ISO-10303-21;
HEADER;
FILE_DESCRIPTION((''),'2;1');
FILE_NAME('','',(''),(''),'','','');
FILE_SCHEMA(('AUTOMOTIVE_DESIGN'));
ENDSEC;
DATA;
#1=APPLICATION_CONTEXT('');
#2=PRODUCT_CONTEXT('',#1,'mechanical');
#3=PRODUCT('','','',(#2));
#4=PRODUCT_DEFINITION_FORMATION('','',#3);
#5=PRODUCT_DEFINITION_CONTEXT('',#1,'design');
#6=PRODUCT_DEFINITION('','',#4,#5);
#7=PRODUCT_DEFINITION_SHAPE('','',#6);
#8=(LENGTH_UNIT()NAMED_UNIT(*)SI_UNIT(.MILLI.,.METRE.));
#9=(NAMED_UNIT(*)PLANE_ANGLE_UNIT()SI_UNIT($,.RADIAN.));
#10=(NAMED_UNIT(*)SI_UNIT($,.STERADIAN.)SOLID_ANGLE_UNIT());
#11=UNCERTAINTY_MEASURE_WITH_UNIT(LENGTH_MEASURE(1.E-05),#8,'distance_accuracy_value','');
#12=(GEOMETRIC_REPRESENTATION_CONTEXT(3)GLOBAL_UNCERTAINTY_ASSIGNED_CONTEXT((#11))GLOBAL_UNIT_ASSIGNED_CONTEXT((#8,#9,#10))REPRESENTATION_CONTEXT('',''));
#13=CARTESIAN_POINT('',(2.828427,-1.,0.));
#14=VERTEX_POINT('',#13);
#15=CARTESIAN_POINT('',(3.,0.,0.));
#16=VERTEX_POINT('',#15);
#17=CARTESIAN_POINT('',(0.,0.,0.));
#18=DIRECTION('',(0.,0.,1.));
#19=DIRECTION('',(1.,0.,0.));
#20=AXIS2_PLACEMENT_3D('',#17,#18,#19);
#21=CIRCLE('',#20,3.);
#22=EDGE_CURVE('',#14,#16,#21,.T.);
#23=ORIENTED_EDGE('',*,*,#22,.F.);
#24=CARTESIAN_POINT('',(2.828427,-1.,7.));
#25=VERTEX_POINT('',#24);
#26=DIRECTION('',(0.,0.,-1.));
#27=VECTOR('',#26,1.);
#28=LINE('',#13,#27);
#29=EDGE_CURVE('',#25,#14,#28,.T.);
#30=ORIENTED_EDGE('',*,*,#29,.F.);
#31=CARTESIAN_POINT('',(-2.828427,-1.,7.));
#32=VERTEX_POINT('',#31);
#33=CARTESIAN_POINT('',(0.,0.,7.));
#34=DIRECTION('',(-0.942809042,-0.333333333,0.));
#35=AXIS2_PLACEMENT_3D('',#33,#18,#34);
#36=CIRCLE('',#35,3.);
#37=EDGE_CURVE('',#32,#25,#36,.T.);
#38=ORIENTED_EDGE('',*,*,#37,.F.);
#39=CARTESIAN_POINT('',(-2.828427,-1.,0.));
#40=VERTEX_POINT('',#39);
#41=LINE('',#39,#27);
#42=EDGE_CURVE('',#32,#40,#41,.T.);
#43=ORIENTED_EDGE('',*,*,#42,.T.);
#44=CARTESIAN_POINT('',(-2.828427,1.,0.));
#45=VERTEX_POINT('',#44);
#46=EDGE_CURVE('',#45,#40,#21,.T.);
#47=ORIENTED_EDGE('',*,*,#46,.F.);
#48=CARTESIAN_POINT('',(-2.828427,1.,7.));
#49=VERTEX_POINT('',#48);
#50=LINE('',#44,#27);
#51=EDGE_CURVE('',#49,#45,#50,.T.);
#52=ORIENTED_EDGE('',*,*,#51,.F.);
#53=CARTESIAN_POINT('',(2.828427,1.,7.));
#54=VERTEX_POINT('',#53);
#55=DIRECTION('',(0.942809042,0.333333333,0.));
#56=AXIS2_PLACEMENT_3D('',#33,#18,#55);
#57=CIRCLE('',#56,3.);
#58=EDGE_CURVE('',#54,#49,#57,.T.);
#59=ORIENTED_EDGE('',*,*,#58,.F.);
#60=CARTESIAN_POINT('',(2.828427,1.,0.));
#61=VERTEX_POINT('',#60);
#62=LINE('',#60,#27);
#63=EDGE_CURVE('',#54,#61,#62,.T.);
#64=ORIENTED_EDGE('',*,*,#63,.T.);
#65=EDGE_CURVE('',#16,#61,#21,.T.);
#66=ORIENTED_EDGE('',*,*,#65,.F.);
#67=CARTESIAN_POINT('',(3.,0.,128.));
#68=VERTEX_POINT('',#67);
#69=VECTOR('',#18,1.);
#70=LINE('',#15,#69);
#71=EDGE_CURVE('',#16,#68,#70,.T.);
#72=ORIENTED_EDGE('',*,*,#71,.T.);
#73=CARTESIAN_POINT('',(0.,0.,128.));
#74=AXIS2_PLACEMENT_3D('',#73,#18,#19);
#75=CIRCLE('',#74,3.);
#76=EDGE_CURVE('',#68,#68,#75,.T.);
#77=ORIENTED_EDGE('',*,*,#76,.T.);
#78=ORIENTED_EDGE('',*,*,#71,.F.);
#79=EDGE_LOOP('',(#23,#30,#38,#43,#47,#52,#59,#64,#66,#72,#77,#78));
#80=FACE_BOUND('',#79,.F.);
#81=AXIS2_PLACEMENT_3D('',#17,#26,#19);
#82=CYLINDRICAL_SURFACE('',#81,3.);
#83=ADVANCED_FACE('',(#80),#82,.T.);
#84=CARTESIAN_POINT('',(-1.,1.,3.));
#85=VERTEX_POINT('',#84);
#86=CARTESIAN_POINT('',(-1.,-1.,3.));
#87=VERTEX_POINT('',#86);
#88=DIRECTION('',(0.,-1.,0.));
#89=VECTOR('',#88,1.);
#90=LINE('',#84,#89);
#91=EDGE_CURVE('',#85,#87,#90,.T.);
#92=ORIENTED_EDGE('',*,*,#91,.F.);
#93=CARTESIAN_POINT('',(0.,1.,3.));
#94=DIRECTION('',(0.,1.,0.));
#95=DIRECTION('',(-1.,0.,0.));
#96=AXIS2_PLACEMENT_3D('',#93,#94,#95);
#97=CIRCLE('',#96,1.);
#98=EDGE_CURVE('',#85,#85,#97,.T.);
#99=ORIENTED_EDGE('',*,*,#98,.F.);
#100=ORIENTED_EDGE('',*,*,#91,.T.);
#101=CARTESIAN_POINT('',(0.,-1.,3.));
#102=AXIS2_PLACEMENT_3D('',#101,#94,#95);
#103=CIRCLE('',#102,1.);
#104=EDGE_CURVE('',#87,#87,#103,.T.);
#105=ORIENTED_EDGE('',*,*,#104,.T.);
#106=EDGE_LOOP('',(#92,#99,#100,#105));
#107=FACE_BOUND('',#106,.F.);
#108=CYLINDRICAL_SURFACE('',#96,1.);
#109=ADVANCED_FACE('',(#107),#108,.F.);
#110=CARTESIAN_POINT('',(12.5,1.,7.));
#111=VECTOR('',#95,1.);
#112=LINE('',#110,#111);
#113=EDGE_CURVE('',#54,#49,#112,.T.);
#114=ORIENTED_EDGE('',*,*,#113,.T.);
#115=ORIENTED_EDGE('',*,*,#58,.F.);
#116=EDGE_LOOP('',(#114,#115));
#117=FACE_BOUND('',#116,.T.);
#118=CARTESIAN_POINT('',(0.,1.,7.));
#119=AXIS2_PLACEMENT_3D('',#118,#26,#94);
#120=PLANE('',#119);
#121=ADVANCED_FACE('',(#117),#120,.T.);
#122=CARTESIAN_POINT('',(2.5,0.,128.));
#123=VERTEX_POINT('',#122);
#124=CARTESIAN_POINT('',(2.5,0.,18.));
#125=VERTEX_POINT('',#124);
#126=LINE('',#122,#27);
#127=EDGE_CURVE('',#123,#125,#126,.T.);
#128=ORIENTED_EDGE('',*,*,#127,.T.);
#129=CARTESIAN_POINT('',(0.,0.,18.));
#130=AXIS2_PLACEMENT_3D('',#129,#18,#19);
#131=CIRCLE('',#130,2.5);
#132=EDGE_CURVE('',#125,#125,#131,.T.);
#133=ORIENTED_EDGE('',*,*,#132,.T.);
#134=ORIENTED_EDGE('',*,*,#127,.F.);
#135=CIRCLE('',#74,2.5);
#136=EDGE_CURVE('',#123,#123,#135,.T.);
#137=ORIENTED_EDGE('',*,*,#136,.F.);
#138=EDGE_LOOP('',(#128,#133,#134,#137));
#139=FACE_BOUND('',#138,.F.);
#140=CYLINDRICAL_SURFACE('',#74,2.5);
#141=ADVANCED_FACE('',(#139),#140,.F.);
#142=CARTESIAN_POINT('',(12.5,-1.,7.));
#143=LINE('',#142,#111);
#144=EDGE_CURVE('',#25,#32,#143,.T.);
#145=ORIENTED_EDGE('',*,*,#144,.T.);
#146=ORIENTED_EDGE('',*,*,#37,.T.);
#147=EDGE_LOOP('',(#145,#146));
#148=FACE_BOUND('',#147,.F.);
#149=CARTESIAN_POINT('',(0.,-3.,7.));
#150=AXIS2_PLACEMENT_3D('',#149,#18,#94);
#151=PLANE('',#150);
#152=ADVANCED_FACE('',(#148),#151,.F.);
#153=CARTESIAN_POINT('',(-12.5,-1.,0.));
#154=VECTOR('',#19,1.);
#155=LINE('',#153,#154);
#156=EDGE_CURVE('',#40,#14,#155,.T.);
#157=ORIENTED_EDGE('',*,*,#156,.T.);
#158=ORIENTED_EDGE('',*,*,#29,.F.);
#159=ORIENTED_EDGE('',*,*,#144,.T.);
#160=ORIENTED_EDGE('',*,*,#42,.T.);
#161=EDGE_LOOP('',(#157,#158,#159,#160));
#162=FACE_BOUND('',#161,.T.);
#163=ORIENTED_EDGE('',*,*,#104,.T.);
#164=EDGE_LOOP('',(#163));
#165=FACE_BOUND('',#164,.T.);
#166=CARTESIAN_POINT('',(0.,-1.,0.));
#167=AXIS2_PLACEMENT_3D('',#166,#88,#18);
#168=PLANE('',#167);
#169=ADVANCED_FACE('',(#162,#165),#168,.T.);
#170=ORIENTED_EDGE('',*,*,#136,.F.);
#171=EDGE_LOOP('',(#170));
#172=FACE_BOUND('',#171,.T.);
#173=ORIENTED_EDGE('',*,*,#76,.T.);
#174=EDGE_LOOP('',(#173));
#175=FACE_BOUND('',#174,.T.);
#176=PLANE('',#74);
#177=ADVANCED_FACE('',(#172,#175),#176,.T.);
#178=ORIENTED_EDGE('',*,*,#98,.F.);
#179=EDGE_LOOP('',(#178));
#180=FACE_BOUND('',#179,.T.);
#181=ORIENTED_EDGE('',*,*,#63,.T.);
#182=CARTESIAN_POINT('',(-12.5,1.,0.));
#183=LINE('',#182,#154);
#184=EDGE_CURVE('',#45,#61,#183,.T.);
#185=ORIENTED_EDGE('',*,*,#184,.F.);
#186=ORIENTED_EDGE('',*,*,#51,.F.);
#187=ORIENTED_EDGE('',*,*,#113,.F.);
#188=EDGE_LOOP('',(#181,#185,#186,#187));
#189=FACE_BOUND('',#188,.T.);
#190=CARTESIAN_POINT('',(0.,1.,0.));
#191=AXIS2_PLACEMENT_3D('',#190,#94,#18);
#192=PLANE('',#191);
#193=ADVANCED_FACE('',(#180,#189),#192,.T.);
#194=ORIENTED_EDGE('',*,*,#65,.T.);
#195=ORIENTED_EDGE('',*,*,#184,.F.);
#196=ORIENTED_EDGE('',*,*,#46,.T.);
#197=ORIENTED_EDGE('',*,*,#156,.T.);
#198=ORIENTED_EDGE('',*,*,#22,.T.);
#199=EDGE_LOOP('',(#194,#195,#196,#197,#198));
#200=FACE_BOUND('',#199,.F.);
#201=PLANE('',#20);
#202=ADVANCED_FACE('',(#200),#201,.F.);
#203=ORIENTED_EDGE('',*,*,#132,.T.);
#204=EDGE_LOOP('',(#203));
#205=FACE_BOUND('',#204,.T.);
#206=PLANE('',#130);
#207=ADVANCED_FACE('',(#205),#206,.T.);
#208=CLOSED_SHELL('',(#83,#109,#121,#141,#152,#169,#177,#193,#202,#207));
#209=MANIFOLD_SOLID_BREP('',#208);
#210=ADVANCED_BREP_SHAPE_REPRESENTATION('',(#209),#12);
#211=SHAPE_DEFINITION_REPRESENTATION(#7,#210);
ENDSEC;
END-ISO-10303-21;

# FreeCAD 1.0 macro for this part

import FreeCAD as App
import Part
import Sketcher
from FreeCAD import Vector


def add_polygon(sketch, points):
    """Adds a closed chain of lines whose ends are joined by coincident constraints."""
    first, n = sketch.GeometryCount, len(points)
    for a, b in zip(points, points[1:] + points[:1]):
        sketch.addGeometry(Part.LineSegment(App.Vector(*a, 0), App.Vector(*b, 0)), False)
    for i in range(n):
        sketch.addConstraint(Sketcher.Constraint("Coincident", first + i, 2, first + (i + 1) % n, 1))

doc = App.newDocument("Part")
body = doc.addObject("PartDesign::Body", "Body")

# Sketch on XY plane
sketch1 = body.newObject("Sketcher::SketchObject", "Sketch")
sketch1.AttachmentSupport = (doc.getObject("XY_Plane"), [""])
sketch1.MapMode = "FlatFace"
sketch1.addGeometry(Part.Circle(Vector(0, 0, 0), Vector(0, 0, 1), 3), False)
sketch1.addConstraint([
    Sketcher.Constraint("Coincident", 0, 3, -1, 1),
    Sketcher.Constraint("Diameter", 0, 6.0),
])
pad1 = body.newObject("PartDesign::Pad", "Pad")
pad1.Profile = sketch1
pad1.Length = 128

# Sketch on YZ plane
sketch2 = body.newObject("Sketcher::SketchObject", "Sketch001")
sketch2.AttachmentSupport = (doc.getObject("YZ_Plane"), [""])
sketch2.MapMode = "FlatFace"
add_polygon(sketch2, [(-3, 7), (-3, 0), (-1, 0), (-1, 7)])  # lines 0-3
add_polygon(sketch2, [(1, 7), (1, 0), (3, 0), (3, 7)])  # lines 4-7
sketch2.addConstraint([
    Sketcher.Constraint("Vertical", 0),
    Sketcher.Constraint("Horizontal", 1),
    Sketcher.Constraint("Vertical", 2),
    Sketcher.Constraint("Horizontal", 3),
    Sketcher.Constraint("Vertical", 4),
    Sketcher.Constraint("Horizontal", 5),
    Sketcher.Constraint("Vertical", 6),
    Sketcher.Constraint("Horizontal", 7),
    Sketcher.Constraint("Symmetric", 1, 2, 4, 2, -1, 1),
    Sketcher.Constraint("Symmetric", 0, 2, 5, 2, -2),
    Sketcher.Constraint("Horizontal", 3, 2, 6, 2),
    Sketcher.Constraint("DistanceX", 1, 1, 1, 2, 2.0),
    Sketcher.Constraint("DistanceY", 0, 2, 0, 1, 7.0),
    Sketcher.Constraint("DistanceX", 0, 2, -1, 1, 3.0),
])
pocket1 = body.newObject("PartDesign::Pocket", "Pocket")
pocket1.Profile = sketch2
pocket1.Length = 25
pocket1.Midplane = True

# Sketch on XZ plane
sketch3 = body.newObject("Sketcher::SketchObject", "Sketch002")
sketch3.AttachmentSupport = (doc.getObject("XZ_Plane"), [""])
sketch3.MapMode = "FlatFace"
sketch3.AttachmentOffset = App.Placement(Vector(0, 0, -1), App.Rotation())
sketch3.addGeometry(Part.Circle(Vector(0, 3, 0), Vector(0, 0, 1), 1), False)
sketch3.addConstraint([
    Sketcher.Constraint("PointOnObject", 0, 3, -2),
    Sketcher.Constraint("Diameter", 0, 2.0),
    Sketcher.Constraint("DistanceY", -1, 1, 0, 3, 3.0),
])
pocket2 = body.newObject("PartDesign::Pocket", "Pocket001")
pocket2.Profile = sketch3
pocket2.Length = 25
pocket2.Reversed = True

# Sketch on XY plane
sketch4 = body.newObject("Sketcher::SketchObject", "Sketch003")
sketch4.AttachmentSupport = (doc.getObject("XY_Plane"), [""])
sketch4.MapMode = "FlatFace"
sketch4.AttachmentOffset = App.Placement(Vector(0, 0, 128), App.Rotation())
sketch4.addGeometry(Part.Circle(Vector(0, 0, 0), Vector(0, 0, 1), 2.5), False)
sketch4.addConstraint([
    Sketcher.Constraint("Coincident", 0, 3, -1, 1),
    Sketcher.Constraint("Diameter", 0, 5.0),
])
pocket3 = body.newObject("PartDesign::Pocket", "Pocket002")
pocket3.Profile = sketch4
pocket3.Length = 110

doc.recompute()
